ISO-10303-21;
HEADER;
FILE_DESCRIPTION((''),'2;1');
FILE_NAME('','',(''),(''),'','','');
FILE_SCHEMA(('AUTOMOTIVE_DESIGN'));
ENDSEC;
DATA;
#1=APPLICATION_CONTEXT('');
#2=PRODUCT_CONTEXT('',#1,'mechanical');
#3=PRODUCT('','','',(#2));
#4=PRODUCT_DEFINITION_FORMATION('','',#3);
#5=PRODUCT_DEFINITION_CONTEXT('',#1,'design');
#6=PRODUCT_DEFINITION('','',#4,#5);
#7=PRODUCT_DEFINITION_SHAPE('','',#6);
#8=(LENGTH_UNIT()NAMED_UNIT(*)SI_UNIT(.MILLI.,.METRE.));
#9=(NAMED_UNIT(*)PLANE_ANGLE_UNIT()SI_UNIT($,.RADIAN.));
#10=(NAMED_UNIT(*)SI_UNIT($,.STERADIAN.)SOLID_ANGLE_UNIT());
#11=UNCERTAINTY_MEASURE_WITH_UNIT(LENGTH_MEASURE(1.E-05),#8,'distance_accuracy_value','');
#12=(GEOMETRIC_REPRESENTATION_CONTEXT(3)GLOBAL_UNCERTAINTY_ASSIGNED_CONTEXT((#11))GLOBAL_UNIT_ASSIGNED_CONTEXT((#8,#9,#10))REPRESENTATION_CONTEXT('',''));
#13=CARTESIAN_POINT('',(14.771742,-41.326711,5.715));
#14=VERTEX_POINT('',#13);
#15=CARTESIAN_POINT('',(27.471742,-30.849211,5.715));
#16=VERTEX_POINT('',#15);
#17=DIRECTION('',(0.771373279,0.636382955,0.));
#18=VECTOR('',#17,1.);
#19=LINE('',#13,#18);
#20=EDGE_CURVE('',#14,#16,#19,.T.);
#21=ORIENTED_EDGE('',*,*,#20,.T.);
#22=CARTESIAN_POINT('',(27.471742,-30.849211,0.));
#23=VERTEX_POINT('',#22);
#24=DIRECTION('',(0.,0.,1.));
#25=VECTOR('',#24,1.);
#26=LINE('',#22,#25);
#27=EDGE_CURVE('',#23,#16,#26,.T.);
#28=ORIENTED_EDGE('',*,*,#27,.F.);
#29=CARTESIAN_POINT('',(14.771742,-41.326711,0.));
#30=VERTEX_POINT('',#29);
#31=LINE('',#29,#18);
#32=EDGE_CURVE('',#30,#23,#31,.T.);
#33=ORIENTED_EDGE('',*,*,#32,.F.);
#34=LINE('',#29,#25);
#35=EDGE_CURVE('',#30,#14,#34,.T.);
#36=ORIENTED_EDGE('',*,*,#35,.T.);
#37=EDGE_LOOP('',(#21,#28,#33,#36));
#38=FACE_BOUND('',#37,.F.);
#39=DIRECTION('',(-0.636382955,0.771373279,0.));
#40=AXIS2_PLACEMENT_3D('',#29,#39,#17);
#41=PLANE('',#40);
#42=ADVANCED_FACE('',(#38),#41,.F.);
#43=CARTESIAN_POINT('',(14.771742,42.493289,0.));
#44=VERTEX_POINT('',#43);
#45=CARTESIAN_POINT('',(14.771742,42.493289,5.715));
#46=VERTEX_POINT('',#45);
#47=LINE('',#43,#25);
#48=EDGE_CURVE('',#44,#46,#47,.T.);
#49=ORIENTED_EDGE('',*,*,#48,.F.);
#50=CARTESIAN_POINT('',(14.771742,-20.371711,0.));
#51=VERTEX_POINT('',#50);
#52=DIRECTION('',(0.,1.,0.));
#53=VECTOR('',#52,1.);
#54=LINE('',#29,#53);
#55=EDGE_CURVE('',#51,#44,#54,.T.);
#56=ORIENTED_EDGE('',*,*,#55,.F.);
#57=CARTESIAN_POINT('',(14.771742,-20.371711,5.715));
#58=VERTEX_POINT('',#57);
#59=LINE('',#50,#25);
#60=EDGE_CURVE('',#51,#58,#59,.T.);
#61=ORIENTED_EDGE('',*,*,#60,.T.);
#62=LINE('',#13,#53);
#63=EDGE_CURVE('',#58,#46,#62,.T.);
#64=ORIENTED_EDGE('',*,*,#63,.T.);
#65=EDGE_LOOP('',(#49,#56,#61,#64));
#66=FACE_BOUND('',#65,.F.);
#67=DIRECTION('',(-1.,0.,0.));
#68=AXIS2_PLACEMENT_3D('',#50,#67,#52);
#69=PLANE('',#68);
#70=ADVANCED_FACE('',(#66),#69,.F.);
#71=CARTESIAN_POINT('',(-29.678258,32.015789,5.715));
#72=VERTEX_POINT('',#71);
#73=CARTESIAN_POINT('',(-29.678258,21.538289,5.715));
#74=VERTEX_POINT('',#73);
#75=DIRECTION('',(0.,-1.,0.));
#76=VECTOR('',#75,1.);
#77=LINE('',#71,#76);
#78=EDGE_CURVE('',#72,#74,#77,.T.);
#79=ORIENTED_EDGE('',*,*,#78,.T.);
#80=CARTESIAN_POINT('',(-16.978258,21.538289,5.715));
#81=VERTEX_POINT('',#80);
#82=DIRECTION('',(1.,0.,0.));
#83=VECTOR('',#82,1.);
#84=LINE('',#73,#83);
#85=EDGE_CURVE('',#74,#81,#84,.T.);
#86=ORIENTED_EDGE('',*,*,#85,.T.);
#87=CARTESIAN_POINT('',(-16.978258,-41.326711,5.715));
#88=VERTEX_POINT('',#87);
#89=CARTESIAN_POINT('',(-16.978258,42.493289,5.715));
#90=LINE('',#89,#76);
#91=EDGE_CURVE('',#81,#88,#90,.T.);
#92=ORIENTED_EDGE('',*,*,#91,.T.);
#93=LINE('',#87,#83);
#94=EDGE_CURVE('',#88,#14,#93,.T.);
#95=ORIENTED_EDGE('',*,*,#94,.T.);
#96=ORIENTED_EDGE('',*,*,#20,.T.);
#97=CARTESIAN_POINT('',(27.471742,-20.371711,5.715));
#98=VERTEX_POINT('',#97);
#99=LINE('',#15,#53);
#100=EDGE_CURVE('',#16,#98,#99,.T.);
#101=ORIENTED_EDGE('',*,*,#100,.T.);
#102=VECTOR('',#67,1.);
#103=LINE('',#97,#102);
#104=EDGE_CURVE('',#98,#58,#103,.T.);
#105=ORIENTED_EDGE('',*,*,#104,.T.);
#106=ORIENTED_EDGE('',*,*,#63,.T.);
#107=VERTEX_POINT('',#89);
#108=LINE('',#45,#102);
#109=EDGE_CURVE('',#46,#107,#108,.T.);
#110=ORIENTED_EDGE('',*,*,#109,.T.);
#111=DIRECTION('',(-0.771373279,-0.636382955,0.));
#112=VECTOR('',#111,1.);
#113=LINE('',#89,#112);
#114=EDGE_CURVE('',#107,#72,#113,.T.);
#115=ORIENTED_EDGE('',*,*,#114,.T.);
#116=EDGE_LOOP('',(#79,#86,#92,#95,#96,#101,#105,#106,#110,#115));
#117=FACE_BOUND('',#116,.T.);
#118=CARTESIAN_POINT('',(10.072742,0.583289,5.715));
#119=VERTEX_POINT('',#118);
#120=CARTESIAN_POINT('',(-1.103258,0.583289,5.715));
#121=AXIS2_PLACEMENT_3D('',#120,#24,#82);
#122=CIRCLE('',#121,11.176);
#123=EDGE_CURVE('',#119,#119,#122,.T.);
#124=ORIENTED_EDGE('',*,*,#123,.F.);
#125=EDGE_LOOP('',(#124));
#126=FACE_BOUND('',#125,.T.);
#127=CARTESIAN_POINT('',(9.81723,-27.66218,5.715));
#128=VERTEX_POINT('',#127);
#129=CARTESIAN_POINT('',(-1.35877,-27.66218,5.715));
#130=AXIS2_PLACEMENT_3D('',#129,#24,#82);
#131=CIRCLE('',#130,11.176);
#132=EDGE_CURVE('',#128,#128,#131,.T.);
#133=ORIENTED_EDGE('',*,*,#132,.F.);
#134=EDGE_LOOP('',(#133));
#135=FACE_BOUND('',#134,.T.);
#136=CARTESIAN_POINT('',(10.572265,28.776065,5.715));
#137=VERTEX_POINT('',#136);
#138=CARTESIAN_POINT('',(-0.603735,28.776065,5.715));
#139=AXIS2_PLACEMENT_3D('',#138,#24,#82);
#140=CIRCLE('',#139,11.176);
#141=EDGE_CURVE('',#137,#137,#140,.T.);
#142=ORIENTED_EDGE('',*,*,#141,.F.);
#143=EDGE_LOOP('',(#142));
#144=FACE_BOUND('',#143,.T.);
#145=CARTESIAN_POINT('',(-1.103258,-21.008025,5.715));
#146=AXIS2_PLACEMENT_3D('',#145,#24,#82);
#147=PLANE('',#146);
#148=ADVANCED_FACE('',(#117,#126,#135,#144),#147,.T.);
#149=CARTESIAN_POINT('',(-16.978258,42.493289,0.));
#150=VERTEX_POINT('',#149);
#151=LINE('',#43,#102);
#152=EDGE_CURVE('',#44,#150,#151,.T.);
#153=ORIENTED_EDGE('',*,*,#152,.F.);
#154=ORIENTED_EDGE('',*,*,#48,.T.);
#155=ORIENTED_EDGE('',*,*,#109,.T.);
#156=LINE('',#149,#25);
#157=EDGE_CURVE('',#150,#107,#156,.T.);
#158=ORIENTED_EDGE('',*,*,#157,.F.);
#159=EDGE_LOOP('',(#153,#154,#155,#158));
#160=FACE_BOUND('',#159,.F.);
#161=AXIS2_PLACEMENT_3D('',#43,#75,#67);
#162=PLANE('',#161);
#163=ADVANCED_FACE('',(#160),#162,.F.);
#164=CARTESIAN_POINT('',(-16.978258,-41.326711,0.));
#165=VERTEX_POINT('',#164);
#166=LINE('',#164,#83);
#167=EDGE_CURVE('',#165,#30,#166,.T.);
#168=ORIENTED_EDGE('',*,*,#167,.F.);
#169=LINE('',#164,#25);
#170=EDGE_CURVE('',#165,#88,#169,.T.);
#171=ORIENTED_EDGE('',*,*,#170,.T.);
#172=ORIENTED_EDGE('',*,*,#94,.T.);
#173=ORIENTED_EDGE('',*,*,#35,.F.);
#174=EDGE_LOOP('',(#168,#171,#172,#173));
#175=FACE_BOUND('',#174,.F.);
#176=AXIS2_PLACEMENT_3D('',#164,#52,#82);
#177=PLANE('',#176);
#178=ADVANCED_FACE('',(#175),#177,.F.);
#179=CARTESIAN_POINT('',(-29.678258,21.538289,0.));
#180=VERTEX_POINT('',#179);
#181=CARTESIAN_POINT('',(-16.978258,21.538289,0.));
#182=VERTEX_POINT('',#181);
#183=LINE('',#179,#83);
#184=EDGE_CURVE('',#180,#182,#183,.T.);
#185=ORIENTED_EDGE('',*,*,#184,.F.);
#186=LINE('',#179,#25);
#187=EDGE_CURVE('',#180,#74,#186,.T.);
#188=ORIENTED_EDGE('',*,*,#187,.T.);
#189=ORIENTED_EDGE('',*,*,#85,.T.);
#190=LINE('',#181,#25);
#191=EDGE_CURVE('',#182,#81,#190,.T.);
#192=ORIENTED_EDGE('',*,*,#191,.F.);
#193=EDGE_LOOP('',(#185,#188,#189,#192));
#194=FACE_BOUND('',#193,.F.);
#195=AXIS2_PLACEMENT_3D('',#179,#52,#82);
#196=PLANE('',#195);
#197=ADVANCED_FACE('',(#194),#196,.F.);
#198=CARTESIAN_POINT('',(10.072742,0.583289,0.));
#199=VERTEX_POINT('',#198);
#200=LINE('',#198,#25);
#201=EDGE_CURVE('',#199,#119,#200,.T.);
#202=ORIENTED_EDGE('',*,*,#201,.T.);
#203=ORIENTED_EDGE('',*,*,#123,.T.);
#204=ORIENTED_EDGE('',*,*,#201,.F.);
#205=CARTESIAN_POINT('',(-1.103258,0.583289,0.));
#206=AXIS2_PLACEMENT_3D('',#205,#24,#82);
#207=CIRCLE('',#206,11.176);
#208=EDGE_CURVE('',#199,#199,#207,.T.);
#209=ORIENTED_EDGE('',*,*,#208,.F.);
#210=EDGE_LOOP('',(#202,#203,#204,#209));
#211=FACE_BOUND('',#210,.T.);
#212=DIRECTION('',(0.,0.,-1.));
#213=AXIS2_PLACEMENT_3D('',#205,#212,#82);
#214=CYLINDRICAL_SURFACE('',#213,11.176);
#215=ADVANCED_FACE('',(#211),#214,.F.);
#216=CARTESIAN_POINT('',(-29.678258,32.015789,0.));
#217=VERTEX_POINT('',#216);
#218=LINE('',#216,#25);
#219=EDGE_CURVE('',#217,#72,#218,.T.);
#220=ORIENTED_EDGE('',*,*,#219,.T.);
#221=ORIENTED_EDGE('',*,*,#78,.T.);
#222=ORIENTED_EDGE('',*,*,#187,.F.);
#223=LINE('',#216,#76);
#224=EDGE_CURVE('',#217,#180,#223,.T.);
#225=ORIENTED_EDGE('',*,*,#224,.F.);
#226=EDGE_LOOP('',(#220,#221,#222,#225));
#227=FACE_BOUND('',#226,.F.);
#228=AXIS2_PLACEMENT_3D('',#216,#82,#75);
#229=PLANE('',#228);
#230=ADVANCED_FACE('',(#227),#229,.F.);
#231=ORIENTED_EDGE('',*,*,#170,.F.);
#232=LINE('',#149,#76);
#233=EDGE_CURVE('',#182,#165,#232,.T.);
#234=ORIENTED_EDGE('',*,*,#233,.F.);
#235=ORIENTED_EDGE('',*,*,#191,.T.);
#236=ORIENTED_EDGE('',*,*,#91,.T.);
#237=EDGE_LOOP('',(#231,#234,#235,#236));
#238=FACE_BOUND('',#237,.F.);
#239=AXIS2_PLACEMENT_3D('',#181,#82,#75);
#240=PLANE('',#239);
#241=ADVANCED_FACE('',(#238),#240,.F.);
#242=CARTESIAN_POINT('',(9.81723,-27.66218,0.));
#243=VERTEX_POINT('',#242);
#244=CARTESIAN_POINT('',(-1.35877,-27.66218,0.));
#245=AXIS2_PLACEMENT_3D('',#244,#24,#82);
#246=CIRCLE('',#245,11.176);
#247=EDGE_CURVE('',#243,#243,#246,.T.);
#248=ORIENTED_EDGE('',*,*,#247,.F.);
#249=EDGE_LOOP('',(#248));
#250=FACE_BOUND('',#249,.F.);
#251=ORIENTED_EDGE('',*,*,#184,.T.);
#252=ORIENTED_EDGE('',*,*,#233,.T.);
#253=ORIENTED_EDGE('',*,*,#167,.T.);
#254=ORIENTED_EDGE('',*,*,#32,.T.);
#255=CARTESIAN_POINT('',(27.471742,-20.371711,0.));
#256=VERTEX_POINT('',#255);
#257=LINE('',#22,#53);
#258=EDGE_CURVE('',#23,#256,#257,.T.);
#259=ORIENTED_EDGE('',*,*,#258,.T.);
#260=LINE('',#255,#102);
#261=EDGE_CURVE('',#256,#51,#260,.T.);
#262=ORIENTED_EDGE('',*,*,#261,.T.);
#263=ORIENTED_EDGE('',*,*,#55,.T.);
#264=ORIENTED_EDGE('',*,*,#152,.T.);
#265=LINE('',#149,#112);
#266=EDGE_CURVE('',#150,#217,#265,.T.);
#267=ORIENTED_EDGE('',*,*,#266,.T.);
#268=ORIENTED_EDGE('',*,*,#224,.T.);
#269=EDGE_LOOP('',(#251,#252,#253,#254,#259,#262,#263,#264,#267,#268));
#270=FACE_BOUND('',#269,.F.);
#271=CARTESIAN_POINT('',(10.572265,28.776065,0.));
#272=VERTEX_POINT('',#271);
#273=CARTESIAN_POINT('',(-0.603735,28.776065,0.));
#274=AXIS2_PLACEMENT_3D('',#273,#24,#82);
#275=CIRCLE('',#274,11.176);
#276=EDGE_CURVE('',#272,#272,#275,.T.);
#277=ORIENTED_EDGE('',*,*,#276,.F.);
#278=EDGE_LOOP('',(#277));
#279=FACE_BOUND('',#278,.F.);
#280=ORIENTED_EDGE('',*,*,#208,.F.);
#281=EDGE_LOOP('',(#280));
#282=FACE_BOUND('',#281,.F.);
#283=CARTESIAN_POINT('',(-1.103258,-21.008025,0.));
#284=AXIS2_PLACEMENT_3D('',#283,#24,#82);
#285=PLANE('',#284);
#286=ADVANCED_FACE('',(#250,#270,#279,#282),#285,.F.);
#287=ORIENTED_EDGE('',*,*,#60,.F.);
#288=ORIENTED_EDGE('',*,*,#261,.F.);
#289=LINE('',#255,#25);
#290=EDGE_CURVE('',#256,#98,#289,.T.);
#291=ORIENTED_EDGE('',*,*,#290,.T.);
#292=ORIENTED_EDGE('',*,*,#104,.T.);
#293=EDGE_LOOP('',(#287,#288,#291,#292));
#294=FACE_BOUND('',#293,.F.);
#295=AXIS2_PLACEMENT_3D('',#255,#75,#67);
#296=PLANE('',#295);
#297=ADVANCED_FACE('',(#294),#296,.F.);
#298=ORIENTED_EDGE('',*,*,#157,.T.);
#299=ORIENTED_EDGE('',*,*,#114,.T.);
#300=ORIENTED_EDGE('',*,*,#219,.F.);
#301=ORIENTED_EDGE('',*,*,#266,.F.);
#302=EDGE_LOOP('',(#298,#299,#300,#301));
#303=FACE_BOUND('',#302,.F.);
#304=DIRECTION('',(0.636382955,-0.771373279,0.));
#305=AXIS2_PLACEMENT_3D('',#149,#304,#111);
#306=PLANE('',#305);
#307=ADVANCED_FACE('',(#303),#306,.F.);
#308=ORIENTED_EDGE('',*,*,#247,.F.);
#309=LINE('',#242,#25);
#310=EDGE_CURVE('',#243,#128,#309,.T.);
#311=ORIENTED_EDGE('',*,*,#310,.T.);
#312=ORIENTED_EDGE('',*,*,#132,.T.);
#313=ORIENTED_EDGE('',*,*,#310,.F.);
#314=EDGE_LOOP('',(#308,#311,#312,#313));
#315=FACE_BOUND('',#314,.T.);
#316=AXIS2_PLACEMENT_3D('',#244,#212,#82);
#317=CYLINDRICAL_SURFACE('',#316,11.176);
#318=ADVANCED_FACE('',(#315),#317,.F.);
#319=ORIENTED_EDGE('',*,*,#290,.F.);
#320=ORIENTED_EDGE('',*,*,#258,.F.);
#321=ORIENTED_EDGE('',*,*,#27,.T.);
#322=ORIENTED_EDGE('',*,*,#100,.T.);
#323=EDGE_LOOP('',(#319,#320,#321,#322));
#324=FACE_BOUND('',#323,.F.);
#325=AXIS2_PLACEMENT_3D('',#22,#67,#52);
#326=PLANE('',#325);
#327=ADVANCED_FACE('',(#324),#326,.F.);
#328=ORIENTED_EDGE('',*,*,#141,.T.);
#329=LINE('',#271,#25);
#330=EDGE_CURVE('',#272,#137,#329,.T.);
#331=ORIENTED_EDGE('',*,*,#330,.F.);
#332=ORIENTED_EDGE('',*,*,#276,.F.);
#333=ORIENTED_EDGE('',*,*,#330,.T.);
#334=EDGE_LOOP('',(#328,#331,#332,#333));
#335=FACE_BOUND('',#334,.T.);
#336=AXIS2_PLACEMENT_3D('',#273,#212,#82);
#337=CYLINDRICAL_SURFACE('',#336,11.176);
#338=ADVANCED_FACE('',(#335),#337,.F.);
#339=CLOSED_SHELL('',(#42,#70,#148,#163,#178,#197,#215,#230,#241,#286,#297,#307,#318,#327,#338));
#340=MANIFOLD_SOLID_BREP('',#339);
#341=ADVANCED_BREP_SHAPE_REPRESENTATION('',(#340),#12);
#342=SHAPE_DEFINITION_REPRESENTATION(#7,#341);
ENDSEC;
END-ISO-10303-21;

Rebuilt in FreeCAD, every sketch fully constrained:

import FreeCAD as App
import Part
import Sketcher
from FreeCAD import Vector
Q = App.Units.Quantity


def add_polygon(sketch, points):
    """Adds a closed chain of lines whose ends are joined by coincident constraints."""
    first, n = sketch.GeometryCount, len(points)
    for a, b in zip(points, points[1:] + points[:1]):
        sketch.addGeometry(Part.LineSegment(App.Vector(*a, 0), App.Vector(*b, 0)), False)
    for i in range(n):
        sketch.addConstraint(Sketcher.Constraint("Coincident", first + i, 2, first + (i + 1) % n, 1))

doc = App.newDocument("Part")
body = doc.addObject("PartDesign::Body", "Body")

# Sketch on XY plane
sketch1 = body.newObject("Sketcher::SketchObject", "Sketch")
sketch1.AttachmentSupport = (doc.getObject("XY_Plane"), [""])
sketch1.MapMode = "FlatFace"
add_polygon(sketch1, [(14.771742, -20.371711), (14.771742, 42.493289), (-16.978258, 42.493289), (-29.678258, 32.015789), (-29.678258, 21.538289), (-16.978258, 21.538289), (-16.978258, -41.326711), (14.771742, -41.326711), (27.471742, -30.849211), (27.471742, -20.371711)])  # lines 0-9
sketch1.addGeometry(Part.Circle(Vector(-1.35877, -27.66218, 0), Vector(0, 0, 1), 11.176), False)  # 10
sketch1.addGeometry(Part.Circle(Vector(-1.103258, 0.583289, 0), Vector(0, 0, 1), 11.176), False)  # 11
sketch1.addGeometry(Part.Circle(Vector(-0.603735, 28.776065, 0), Vector(0, 0, 1), 11.176), False)  # 12
sketch1.addConstraint(Sketcher.Constraint("Vertical", 0))
sketch1.addConstraint(Sketcher.Constraint("Horizontal", 1))
sketch1.addConstraint(Sketcher.Constraint("Vertical", 3))
sketch1.addConstraint(Sketcher.Constraint("Horizontal", 4))
sketch1.addConstraint(Sketcher.Constraint("Vertical", 5))
sketch1.addConstraint(Sketcher.Constraint("Horizontal", 6))
sketch1.addConstraint(Sketcher.Constraint("Vertical", 8))
sketch1.addConstraint(Sketcher.Constraint("Horizontal", 9))
sketch1.addConstraint(Sketcher.Constraint("Equal", 10, 11))
sketch1.addConstraint(Sketcher.Constraint("Equal", 11, 12))
sketch1.addConstraint(Sketcher.Constraint("Parallel", 2, 7))
sketch1.addConstraint(Sketcher.Constraint("Vertical", 1, 2, 4, 2))
sketch1.addConstraint(Sketcher.Constraint("Vertical", 0, 2, 6, 2))
sketch1.addConstraint(Sketcher.Constraint("Equal", 4, 9))
sketch1.addConstraint(Sketcher.Constraint("Equal", 0, 5))
sketch1.addConstraint(Sketcher.Constraint("Diameter", 10, Q("0.88 in")))
sketch1.addConstraint(Sketcher.Constraint("DistanceX", 4, 1, 4, 2, Q("0.5 in")))
sketch1.addConstraint(Sketcher.Constraint("DistanceX", 1, 2, 1, 1, Q("1.25 in")))
sketch1.addConstraint(Sketcher.Constraint("DistanceY", 0, 1, 0, 2, Q("2.475 in")))
sketch1.addConstraint(Sketcher.Constraint("DistanceY", 11, 3, 0, 2, Q("1.65 in")))
sketch1.addConstraint(Sketcher.Constraint("DistanceY", 5, 2, 11, 3, Q("1.65 in")))
sketch1.addConstraint(Sketcher.Constraint("DistanceY", 3, 2, 3, 1, Q("0.4125 in")))
sketch1.addConstraint(Sketcher.Constraint("DistanceX", 11, 3, 0, 2, Q("0.625 in")))
sketch1.addConstraint(Sketcher.Constraint("DistanceX", 10, 3, -1, 1, 1.35877))
sketch1.addConstraint(Sketcher.Constraint("DistanceY", 10, 3, -1, 1, 27.66218))
sketch1.addConstraint(Sketcher.Constraint("DistanceX", 11, 3, -1, 1, 1.103258))
sketch1.addConstraint(Sketcher.Constraint("DistanceY", -1, 1, 11, 3, 0.583289))
sketch1.addConstraint(Sketcher.Constraint("DistanceX", 12, 3, -1, 1, 0.603735))
sketch1.addConstraint(Sketcher.Constraint("DistanceY", -1, 1, 12, 3, 28.776065))
pad1 = body.newObject("PartDesign::Pad", "Pad")
pad1.Profile = sketch1
pad1.Length = Q("0.225 in")

doc.recompute()
